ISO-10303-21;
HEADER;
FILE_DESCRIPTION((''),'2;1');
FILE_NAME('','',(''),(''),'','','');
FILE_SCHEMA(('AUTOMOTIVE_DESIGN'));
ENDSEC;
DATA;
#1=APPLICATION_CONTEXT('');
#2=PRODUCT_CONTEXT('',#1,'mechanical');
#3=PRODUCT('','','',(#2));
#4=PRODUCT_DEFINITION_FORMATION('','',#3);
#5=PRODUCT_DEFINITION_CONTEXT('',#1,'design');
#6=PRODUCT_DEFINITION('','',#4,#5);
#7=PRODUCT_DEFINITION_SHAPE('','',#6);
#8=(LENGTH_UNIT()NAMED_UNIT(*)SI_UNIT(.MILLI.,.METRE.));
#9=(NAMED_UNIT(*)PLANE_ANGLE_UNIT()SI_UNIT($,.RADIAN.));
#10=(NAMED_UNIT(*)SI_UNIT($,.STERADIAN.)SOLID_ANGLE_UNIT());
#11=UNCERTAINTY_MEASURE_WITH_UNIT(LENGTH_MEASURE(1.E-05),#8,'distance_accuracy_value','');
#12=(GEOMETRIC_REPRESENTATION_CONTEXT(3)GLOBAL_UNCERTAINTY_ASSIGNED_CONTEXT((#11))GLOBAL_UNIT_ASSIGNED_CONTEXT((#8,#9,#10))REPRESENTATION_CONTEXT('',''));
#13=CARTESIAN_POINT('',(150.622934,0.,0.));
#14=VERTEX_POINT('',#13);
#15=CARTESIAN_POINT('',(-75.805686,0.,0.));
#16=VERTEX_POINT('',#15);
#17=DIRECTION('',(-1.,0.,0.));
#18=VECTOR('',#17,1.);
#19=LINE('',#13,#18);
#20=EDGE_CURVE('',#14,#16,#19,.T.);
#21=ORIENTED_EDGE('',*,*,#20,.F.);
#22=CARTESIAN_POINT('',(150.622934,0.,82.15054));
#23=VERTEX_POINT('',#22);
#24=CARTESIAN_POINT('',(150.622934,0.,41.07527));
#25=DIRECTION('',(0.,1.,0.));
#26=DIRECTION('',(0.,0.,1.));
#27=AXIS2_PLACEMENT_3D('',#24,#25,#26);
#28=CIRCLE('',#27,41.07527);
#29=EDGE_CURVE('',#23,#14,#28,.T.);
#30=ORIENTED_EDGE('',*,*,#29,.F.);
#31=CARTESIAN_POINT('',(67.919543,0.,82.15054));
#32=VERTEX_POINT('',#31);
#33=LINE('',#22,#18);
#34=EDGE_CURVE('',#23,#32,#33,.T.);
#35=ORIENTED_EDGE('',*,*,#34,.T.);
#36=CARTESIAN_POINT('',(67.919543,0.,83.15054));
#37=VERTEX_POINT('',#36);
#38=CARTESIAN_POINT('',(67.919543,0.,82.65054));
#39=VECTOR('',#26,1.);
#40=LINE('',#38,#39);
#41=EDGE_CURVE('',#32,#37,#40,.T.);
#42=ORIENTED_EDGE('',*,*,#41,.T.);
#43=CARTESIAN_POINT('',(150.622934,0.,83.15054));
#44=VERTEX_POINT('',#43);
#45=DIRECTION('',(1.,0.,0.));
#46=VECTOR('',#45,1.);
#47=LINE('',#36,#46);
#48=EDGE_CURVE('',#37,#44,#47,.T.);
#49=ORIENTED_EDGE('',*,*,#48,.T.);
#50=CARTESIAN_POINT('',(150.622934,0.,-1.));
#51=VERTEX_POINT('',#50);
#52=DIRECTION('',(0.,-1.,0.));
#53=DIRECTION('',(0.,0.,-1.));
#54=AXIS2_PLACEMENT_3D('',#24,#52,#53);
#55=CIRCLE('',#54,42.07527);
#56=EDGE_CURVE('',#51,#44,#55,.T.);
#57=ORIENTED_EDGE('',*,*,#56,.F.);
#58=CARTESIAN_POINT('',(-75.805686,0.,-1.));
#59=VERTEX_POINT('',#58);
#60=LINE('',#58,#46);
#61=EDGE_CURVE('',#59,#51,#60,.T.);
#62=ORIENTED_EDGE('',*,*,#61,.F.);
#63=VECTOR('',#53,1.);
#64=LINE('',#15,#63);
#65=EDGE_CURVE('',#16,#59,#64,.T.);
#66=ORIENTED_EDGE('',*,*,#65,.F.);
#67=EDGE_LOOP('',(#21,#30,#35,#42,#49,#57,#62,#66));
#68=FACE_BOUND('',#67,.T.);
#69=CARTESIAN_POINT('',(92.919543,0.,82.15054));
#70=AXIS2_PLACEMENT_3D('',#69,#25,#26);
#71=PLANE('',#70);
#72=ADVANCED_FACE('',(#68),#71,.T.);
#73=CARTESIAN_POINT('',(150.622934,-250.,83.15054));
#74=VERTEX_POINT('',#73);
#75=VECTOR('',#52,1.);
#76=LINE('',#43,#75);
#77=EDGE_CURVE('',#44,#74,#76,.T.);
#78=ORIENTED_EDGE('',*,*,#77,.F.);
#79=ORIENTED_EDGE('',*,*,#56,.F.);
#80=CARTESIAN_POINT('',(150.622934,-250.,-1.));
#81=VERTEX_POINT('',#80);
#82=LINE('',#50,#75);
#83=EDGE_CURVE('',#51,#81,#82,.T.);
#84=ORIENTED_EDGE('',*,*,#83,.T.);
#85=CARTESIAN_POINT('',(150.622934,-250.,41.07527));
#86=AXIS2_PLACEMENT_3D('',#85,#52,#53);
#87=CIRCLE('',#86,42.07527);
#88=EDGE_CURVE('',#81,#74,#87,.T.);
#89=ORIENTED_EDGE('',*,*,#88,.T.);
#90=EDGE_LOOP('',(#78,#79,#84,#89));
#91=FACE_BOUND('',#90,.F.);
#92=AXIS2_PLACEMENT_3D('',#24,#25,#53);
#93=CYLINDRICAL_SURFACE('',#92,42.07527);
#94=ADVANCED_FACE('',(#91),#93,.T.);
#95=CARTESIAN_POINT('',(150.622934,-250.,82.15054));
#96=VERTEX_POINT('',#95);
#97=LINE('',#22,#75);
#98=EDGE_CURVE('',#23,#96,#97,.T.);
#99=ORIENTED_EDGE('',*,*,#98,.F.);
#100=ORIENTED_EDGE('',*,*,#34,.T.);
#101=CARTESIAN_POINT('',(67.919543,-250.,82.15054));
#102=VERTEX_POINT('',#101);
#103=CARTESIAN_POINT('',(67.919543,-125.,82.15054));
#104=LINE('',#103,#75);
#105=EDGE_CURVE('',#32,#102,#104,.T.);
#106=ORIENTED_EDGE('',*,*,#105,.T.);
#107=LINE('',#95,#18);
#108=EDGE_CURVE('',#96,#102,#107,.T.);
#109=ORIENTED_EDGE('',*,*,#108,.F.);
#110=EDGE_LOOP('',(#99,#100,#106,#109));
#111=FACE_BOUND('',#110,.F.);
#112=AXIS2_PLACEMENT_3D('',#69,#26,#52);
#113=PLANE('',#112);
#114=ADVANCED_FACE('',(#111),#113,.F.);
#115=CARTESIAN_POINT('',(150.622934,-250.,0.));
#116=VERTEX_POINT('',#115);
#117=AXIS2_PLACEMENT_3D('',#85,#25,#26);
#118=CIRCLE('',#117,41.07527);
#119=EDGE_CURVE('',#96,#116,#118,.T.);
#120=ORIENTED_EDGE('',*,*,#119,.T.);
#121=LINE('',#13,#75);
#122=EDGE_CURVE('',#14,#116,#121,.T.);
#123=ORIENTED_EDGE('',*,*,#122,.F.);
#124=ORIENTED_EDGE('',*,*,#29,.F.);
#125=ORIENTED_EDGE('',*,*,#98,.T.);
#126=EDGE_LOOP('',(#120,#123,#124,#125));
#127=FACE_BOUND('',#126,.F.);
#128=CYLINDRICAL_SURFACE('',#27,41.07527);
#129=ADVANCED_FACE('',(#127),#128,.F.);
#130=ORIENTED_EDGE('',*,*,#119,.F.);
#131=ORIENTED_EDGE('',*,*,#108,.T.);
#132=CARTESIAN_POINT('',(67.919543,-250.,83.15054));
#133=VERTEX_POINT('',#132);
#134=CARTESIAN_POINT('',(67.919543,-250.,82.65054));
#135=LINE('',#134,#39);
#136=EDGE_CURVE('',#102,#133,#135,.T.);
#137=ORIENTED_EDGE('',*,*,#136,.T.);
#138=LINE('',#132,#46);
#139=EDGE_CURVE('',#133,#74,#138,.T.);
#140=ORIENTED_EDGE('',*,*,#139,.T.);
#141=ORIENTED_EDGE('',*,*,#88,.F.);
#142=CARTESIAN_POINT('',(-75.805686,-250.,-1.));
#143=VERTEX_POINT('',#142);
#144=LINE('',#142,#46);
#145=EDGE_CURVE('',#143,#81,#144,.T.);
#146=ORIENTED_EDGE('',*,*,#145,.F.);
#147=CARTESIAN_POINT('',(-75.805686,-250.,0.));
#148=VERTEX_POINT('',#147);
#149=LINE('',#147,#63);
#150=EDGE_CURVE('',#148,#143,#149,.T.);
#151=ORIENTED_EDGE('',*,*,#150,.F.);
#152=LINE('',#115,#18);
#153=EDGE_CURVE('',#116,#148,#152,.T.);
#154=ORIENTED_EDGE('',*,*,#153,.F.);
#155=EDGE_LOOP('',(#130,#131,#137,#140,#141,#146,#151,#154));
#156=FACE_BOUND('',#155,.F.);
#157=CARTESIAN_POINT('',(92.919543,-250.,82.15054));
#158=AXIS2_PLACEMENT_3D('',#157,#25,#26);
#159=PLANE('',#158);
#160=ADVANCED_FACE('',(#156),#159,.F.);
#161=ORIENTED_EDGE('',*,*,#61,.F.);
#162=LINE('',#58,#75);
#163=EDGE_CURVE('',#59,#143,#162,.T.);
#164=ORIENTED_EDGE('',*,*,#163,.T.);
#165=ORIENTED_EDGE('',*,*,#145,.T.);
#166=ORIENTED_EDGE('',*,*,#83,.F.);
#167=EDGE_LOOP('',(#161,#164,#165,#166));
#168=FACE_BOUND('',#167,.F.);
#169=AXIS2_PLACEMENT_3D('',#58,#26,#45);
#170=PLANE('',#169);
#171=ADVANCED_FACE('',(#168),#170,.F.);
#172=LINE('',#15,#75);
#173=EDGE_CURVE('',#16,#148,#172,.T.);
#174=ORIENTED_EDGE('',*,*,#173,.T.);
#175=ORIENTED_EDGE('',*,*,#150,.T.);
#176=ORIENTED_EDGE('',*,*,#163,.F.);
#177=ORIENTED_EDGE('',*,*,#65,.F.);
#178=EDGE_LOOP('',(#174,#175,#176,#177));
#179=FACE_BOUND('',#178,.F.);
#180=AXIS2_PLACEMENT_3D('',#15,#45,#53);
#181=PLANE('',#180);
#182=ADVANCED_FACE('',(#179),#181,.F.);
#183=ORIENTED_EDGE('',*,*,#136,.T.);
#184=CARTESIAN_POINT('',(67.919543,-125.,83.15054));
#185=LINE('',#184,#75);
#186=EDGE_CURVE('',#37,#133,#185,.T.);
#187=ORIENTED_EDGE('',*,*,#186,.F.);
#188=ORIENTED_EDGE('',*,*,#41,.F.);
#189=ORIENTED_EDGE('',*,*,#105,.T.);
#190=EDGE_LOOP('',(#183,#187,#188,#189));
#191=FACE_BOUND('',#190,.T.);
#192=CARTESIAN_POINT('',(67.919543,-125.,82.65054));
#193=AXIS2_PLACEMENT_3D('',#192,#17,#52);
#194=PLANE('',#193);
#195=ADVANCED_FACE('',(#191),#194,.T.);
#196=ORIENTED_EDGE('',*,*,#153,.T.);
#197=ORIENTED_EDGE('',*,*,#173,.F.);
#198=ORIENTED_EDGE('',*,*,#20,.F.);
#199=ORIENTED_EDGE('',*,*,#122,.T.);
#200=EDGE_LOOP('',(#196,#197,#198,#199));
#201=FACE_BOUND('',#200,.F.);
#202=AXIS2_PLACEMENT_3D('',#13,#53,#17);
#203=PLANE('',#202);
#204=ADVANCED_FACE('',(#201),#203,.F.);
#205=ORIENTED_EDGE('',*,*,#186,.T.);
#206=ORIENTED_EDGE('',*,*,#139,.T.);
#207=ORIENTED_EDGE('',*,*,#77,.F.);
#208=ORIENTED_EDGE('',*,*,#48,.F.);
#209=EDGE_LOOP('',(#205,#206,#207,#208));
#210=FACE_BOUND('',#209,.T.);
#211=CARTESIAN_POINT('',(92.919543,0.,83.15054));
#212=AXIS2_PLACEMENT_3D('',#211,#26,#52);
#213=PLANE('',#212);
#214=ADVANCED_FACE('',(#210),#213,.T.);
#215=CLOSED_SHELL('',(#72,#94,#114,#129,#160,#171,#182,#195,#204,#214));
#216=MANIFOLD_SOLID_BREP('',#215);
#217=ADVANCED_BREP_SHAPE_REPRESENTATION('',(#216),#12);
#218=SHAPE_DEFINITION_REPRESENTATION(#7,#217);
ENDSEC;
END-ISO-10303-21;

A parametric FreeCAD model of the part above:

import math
import FreeCAD as App
import Part
import Sketcher

doc = App.newDocument("Part")
params = doc.addObject("Spreadsheet::Sheet", "Params")
for row, (alias, value) in enumerate([
    ("sketch1_height", "1 mm"),
    ("pad1_length", "250 mm"),
    ("sketch2_width", "250 mm"),
    ("sketch2_height", "1 mm"),
    ("pad2_length", "25 mm"),
], start=1):
    params.set(f"A{row}", alias)
    params.set(f"B{row}", "=" + value)
    params.setAlias(f"B{row}", alias)

body = doc.addObject("PartDesign::Body", "Body")

# Sketch on XZ plane
sketch1 = doc.addObject("Sketcher::SketchObject", "Sketch")
body.addObject(sketch1)
sketch1.AttachmentSupport = (doc.XZ_Plane, [""])
sketch1.MapMode = "FlatFace"
sketch1.addGeometry([
    Part.LineSegment(App.Vector(150.6, 0, 0), App.Vector(-75.8, 0, 0)),  # 0
    Part.LineSegment(App.Vector(-75.8, 0, 0), App.Vector(-75.8, -1, 0)),  # 1
    Part.LineSegment(App.Vector(-75.8, -1, 0), App.Vector(150.6, -1, 0)),  # 2
    Part.ArcOfCircle(Part.Circle(App.Vector(150.6, 41.1, 0), App.Vector(0, 0, 1), 42.1), math.radians(-90), math.radians(90)),  # 3
    Part.LineSegment(App.Vector(150.6, 83.2, 0), App.Vector(92.9, 83.2, 0)),  # 4
    Part.LineSegment(App.Vector(92.9, 83.2, 0), App.Vector(92.9, 82.2, 0)),  # 5
    Part.LineSegment(App.Vector(92.9, 82.2, 0), App.Vector(150.6, 82.2, 0)),  # 6
    Part.ArcOfCircle(Part.Circle(App.Vector(150.6, 41.1, 0), App.Vector(0, 0, 1), 41.1), math.radians(-90), math.radians(90)),  # 7
], False)
sketch1.addConstraint([
    Sketcher.Constraint("Coincident", 0, 2, 1, 1),
    Sketcher.Constraint("Coincident", 1, 2, 2, 1),
    Sketcher.Constraint("Tangent", 2, 2, 3, 1),
    Sketcher.Constraint("Tangent", 3, 2, 4, 1),
    Sketcher.Constraint("Coincident", 4, 2, 5, 1),
    Sketcher.Constraint("Coincident", 5, 2, 6, 1),
    Sketcher.Constraint("Tangent", 6, 2, 7, 2),
    Sketcher.Constraint("Tangent", 7, 1, 0, 1),
    Sketcher.Constraint("Horizontal", 0),
    Sketcher.Constraint("Vertical", 1),
    Sketcher.Constraint("Horizontal", 2),
    Sketcher.Constraint("Horizontal", 4),
    Sketcher.Constraint("Vertical", 5),
    Sketcher.Constraint("Horizontal", 6),
    Sketcher.Constraint("Coincident", 7, 3, 3, 3),
    Sketcher.Constraint("PointOnObject", 0, 2, -1),
    Sketcher.Constraint("DistanceY", 1, 2, 1, 1, 1.0),
    Sketcher.Constraint("Radius", 3, 42.07527),
    Sketcher.Constraint("DistanceX", 0, 2, 0, 1, 226.42862),
    Sketcher.Constraint("DistanceX", 4, 2, 4, 1, 57.703391),
    Sketcher.Constraint("DistanceX", -1, 1, 3, 3, 150.622934),
])
sketch1.setExpression("Constraints[16]", "Params.sketch1_height")
pad1 = doc.addObject("PartDesign::Pad", "Pad")
body.addObject(pad1)
pad1.Profile = sketch1
pad1.setExpression("Length", "Params.pad1_length")

# Sketch on YZ plane
sketch2 = doc.addObject("Sketcher::SketchObject", "Sketch001")
body.addObject(sketch2)
sketch2.AttachmentSupport = (doc.YZ_Plane, [""])
sketch2.MapMode = "FlatFace"
sketch2.AttachmentOffset = App.Placement(App.Vector(0, 0, 92.919543), App.Rotation())
sketch2.addGeometry([
    Part.LineSegment(App.Vector(0, 83.2, 0), App.Vector(0, 82.2, 0)),
    Part.LineSegment(App.Vector(0, 82.2, 0), App.Vector(-250, 82.2, 0)),
    Part.LineSegment(App.Vector(-250, 82.2, 0), App.Vector(-250, 83.2, 0)),
    Part.LineSegment(App.Vector(-250, 83.2, 0), App.Vector(0, 83.2, 0)),
], False)
sketch2.addConstraint([
    Sketcher.Constraint("Coincident", 0, 2, 1, 1),
    Sketcher.Constraint("Coincident", 1, 2, 2, 1),
    Sketcher.Constraint("Coincident", 2, 2, 3, 1),
    Sketcher.Constraint("Coincident", 3, 2, 0, 1),
    Sketcher.Constraint("Vertical", 0),
    Sketcher.Constraint("Horizontal", 1),
    Sketcher.Constraint("Vertical", 2),
    Sketcher.Constraint("Horizontal", 3),
    Sketcher.Constraint("PointOnObject", 0, 2, -2),
    Sketcher.Constraint("DistanceX", 1, 2, 1, 1, 250.0),
    Sketcher.Constraint("DistanceY", 0, 2, 0, 1, 1.0),
    Sketcher.Constraint("DistanceY", -1, 1, 0, 2, 82.15054),
])
sketch2.setExpression("Constraints[9]", "Params.sketch2_width")
sketch2.setExpression("Constraints[10]", "Params.sketch2_height")
pad2 = doc.addObject("PartDesign::Pad", "Pad001")
body.addObject(pad2)
pad2.Profile = sketch2
pad2.setExpression("Length", "Params.pad2_length")
pad2.Reversed = True

doc.recompute()
